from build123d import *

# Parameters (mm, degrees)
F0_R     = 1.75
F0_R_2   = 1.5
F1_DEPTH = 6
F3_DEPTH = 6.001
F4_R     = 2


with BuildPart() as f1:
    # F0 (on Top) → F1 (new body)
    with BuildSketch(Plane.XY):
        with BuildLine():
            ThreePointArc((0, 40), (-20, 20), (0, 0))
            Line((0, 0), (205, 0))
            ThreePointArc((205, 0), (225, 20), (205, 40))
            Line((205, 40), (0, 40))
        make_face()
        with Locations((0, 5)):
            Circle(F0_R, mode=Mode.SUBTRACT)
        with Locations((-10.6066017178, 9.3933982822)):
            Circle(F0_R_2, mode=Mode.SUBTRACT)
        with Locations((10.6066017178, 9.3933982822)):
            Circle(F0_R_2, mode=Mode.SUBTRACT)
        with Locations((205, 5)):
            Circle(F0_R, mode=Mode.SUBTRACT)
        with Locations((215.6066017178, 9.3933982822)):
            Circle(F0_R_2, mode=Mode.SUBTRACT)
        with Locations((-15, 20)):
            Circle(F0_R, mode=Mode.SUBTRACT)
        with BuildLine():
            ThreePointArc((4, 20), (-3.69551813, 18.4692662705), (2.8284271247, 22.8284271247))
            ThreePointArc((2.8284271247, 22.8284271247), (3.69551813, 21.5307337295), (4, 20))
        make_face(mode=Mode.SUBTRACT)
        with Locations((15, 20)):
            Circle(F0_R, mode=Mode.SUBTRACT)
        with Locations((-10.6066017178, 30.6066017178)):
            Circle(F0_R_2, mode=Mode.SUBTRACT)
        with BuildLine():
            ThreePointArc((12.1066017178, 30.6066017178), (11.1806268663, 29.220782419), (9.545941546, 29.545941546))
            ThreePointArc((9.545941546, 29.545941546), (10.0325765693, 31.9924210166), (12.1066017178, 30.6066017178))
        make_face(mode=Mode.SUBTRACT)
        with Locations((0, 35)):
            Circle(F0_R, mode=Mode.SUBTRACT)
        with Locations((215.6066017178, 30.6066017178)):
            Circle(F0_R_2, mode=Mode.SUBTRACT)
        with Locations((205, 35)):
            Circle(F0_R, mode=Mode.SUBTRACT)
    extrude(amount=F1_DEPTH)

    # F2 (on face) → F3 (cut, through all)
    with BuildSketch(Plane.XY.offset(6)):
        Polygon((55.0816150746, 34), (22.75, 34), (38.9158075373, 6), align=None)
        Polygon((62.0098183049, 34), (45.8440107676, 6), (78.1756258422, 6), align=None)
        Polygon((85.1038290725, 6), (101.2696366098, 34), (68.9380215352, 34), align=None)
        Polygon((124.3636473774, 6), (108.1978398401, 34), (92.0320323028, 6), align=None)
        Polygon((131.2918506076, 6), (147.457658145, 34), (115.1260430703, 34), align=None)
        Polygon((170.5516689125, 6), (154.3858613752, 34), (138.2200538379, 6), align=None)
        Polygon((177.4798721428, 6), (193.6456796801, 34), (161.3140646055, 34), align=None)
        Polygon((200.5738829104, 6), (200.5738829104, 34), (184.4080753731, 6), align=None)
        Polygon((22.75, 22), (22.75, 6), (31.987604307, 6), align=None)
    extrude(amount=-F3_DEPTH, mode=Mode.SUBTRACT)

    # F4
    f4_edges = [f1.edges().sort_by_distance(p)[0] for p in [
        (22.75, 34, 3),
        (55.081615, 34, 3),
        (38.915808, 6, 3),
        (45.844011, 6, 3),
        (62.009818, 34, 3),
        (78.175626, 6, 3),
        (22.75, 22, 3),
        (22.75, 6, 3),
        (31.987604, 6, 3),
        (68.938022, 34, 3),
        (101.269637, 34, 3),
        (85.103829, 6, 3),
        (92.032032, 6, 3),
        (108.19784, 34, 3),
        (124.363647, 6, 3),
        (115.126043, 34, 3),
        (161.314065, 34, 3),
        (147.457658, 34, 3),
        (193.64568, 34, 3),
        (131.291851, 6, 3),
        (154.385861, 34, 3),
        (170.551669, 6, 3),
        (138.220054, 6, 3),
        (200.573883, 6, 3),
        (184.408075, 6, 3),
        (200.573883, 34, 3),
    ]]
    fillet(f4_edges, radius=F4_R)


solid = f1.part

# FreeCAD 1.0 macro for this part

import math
import FreeCAD as App
import Part
import Sketcher
Q = App.Units.Quantity


def edges_at(feature, points):
    """Names of the edges that pass closest to the given points."""
    edges = feature.Shape.Edges
    near = lambda p: min(range(len(edges)), key=lambda i: edges[i].distToShape(Part.Vertex(*p))[0])
    return sorted({f"Edge{near(p) + 1}" for p in points})

doc = App.newDocument("Part")
params = doc.addObject("Spreadsheet::Sheet", "Params")
for row, (alias, value) in enumerate([
    ("sketch1_diameter", "3 mm"),
    ("sketch1_radius", "20 mm"),
    ("sketch1_radius2", "4 mm"),
    ("sketch1_diameter2", "3.5 mm"),
    ("sketch1_width", "205 mm"),
    ("pad1_length", "6 mm"),
    ("sketch2_height", "28 mm"),
    ("sketch2_height2", "16 mm"),
    ("fillet_radius", "2 mm"),
], start=1):
    params.set(f"A{row}", alias)
    params.set(f"B{row}", "=" + value)
    params.setAlias(f"B{row}", alias)

body = doc.addObject("PartDesign::Body", "Body")

# Sketch on XY plane
sketch1 = doc.addObject("Sketcher::SketchObject", "Sketch")
body.addObject(sketch1)
sketch1.AttachmentSupport = (doc.XY_Plane, [""])
sketch1.MapMode = "FlatFace"
sketch1.addGeometry(Part.ArcOfCircle(Part.Circle(App.Vector(0, 20, 0), App.Vector(0, 0, 1), 20), math.radians(90), math.radians(270)), False)
sketch1.addGeometry(Part.LineSegment(App.Vector(0, 0, 0), App.Vector(205, 0, 0)), False)
sketch1.addGeometry(Part.ArcOfCircle(Part.Circle(App.Vector(205, 20, 0), App.Vector(0, 0, 1), 20), math.radians(-90), math.radians(90)), False)
sketch1.addGeometry(Part.LineSegment(App.Vector(205, 40, 0), App.Vector(0, 40, 0)), False)
sketch1.addGeometry(Part.Circle(App.Vector(0, 5, 0), App.Vector(0, 0, 1), 1.75), False)
sketch1.addGeometry(Part.Circle(App.Vector(-10.606602, 9.393398, 0), App.Vector(0, 0, 1), 1.5), False)
sketch1.addGeometry(Part.Circle(App.Vector(10.606602, 9.393398, 0), App.Vector(0, 0, 1), 1.5), False)
sketch1.addGeometry(Part.ArcOfCircle(Part.Circle(App.Vector(0, 20, 0), App.Vector(0, 0, 1), 4), math.radians(0), math.radians(45)), False)
sketch1.addGeometry(Part.ArcOfCircle(Part.Circle(App.Vector(0, 20, 0), App.Vector(0, 0, 1), 4), math.radians(45), math.radians(360)), False)
sketch1.addGeometry(Part.Circle(App.Vector(205, 5, 0), App.Vector(0, 0, 1), 1.75), False)
sketch1.addGeometry(Part.Circle(App.Vector(215.606602, 9.393398, 0), App.Vector(0, 0, 1), 1.5), False)
sketch1.addGeometry(Part.Circle(App.Vector(-15, 20, 0), App.Vector(0, 0, 1), 1.75), False)
sketch1.addGeometry(Part.Circle(App.Vector(15, 20, 0), App.Vector(0, 0, 1), 1.75), False)
sketch1.addGeometry(Part.Circle(App.Vector(-10.606602, 30.606602, 0), App.Vector(0, 0, 1), 1.5), False)
sketch1.addGeometry(Part.ArcOfCircle(Part.Circle(App.Vector(10.606602, 30.606602, 0), App.Vector(0, 0, 1), 1.5), math.radians(0), math.radians(225)), False)
sketch1.addGeometry(Part.ArcOfCircle(Part.Circle(App.Vector(10.606602, 30.606602, 0), App.Vector(0, 0, 1), 1.5), math.radians(-135), math.radians(0)), False)
sketch1.addGeometry(Part.Circle(App.Vector(0, 35, 0), App.Vector(0, 0, 1), 1.75), False)
sketch1.addGeometry(Part.Circle(App.Vector(215.606602, 30.606602, 0), App.Vector(0, 0, 1), 1.5), False)
sketch1.addGeometry(Part.Circle(App.Vector(205, 35, 0), App.Vector(0, 0, 1), 1.75), False)
sketch1.addConstraint(Sketcher.Constraint("Tangent", 0, 2, 1, 1))
sketch1.addConstraint(Sketcher.Constraint("Tangent", 1, 2, 2, 1))
sketch1.addConstraint(Sketcher.Constraint("Tangent", 2, 2, 3, 1))
sketch1.addConstraint(Sketcher.Constraint("Tangent", 3, 2, 0, 1))
sketch1.addConstraint(Sketcher.Constraint("Tangent", 7, 1, 8, 2))
sketch1.addConstraint(Sketcher.Constraint("Coincident", 8, 1, 7, 2))
sketch1.addConstraint(Sketcher.Constraint("Tangent", 14, 1, 15, 2))
sketch1.addConstraint(Sketcher.Constraint("Coincident", 15, 1, 14, 2))
sketch1.addConstraint(Sketcher.Constraint("Horizontal", 1))
sketch1.addConstraint(Sketcher.Constraint("Horizontal", 3))
sketch1.addConstraint(Sketcher.Constraint("Coincident", 0, 2, -1, 1))
sketch1.addConstraint(Sketcher.Constraint("Coincident", 7, 3, 0, 3))
sketch1.addConstraint(Sketcher.Constraint("Equal", 5, 6))
sketch1.addConstraint(Sketcher.Constraint("Equal", 4, 9))
sketch1.addConstraint(Sketcher.Constraint("Equal", 6, 10))
sketch1.addConstraint(Sketcher.Constraint("Equal", 9, 11))
sketch1.addConstraint(Sketcher.Constraint("Equal", 11, 12))
sketch1.addConstraint(Sketcher.Constraint("Equal", 10, 13))
sketch1.addConstraint(Sketcher.Constraint("Equal", 13, 14))
sketch1.addConstraint(Sketcher.Constraint("Equal", 12, 16))
sketch1.addConstraint(Sketcher.Constraint("Equal", 15, 17))
sketch1.addConstraint(Sketcher.Constraint("Equal", 16, 18))
sketch1.addConstraint(Sketcher.Constraint("Symmetric", 5, 3, 6, 3, -2))
sketch1.addConstraint(Sketcher.Constraint("Symmetric", 11, 3, 12, 3, -2))
sketch1.addConstraint(Sketcher.Constraint("Symmetric", 13, 3, 14, 3, -2))
sketch1.addConstraint(Sketcher.Constraint("PointOnObject", 4, 3, -2))
sketch1.addConstraint(Sketcher.Constraint("PointOnObject", 16, 3, -2))
sketch1.addConstraint(Sketcher.Constraint("Horizontal", 4, 3, 9, 3))
sketch1.addConstraint(Sketcher.Constraint("Horizontal", 6, 3, 10, 3))
sketch1.addConstraint(Sketcher.Constraint("Horizontal", 8, 3, 11, 3))
sketch1.addConstraint(Sketcher.Constraint("Horizontal", 15, 3, 17, 3))
sketch1.addConstraint(Sketcher.Constraint("Horizontal", 16, 3, 18, 3))
sketch1.addConstraint(Sketcher.Constraint("Horizontal", 12, 3, 7, 1))
sketch1.addConstraint(Sketcher.Constraint("Horizontal", 17, 3, 14, 1))
sketch1.addConstraint(Sketcher.Constraint("Vertical", 2, 3, 9, 3))
sketch1.addConstraint(Sketcher.Constraint("Vertical", 5, 3, 13, 3))
sketch1.addConstraint(Sketcher.Constraint("Vertical", 10, 3, 17, 3))
sketch1.addConstraint(Sketcher.Constraint("Vertical", 9, 3, 18, 3))
sketch1.addConstraint(Sketcher.Constraint("Diameter", 5, 3.0))
sketch1.addConstraint(Sketcher.Constraint("Radius", 0, 20.0))
sketch1.addConstraint(Sketcher.Constraint("Radius", 7, 4.0))
sketch1.addConstraint(Sketcher.Constraint("Diameter", 4, 3.5))
sketch1.addConstraint(Sketcher.Constraint("DistanceX", 1, 1, 1, 2, 205.0))
sketch1.addConstraint(Sketcher.Constraint("DistanceY", -1, 1, 4, 3, 5.0))
sketch1.addConstraint(Sketcher.Constraint("DistanceX", 11, 3, -1, 1, 15.0))
sketch1.addConstraint(Sketcher.Constraint("DistanceY", -1, 1, 16, 3, 35.0))
sketch1.addConstraint(Sketcher.Constraint("DistanceX", 6, 3, 10, 3, 205.0))
sketch1.addConstraint(Sketcher.Constraint("DistanceX", 5, 3, -1, 1, 10.606602))
sketch1.addConstraint(Sketcher.Constraint("DistanceY", -1, 1, 5, 3, 9.393398))
sketch1.addConstraint(Sketcher.Constraint("DistanceY", -1, 1, 13, 3, 30.606602))
sketch1.addConstraint(Sketcher.Constraint("DistanceX", -1, 1, 15, 1, 9.545942))
sketch1.addConstraint(Sketcher.Constraint("DistanceX", -1, 1, 8, 1, 2.828427))
sketch1.setExpression("Constraints[38]", "Params.sketch1_diameter")
sketch1.setExpression("Constraints[39]", "Params.sketch1_radius")
sketch1.setExpression("Constraints[40]", "Params.sketch1_radius2")
sketch1.setExpression("Constraints[41]", "Params.sketch1_diameter2")
sketch1.setExpression("Constraints[42]", "Params.sketch1_width")
pad1 = doc.addObject("PartDesign::Pad", "Pad")
body.addObject(pad1)
pad1.Profile = sketch1
pad1.setExpression("Length", "Params.pad1_length")

# Sketch on XY plane
sketch2 = doc.addObject("Sketcher::SketchObject", "Sketch001")
body.addObject(sketch2)
sketch2.AttachmentSupport = (doc.XY_Plane, [""])
sketch2.MapMode = "FlatFace"
sketch2.AttachmentOffset = App.Placement(App.Vector(0, 0, 6), App.Rotation())
sketch2.addGeometry(Part.LineSegment(App.Vector(55.081615, 34, 0), App.Vector(22.75, 34, 0)), False)
sketch2.addGeometry(Part.LineSegment(App.Vector(22.75, 34, 0), App.Vector(38.915808, 6, 0)), False)
sketch2.addGeometry(Part.LineSegment(App.Vector(38.915808, 6, 0), App.Vector(55.081615, 34, 0)), False)
sketch2.addGeometry(Part.LineSegment(App.Vector(62.009818, 34, 0), App.Vector(45.844011, 6, 0)), False)
sketch2.addGeometry(Part.LineSegment(App.Vector(45.844011, 6, 0), App.Vector(78.175626, 6, 0)), False)
sketch2.addGeometry(Part.LineSegment(App.Vector(78.175626, 6, 0), App.Vector(62.009818, 34, 0)), False)
sketch2.addGeometry(Part.LineSegment(App.Vector(85.103829, 6, 0), App.Vector(101.269637, 34, 0)), False)
sketch2.addGeometry(Part.LineSegment(App.Vector(101.269637, 34, 0), App.Vector(68.938022, 34, 0)), False)
sketch2.addGeometry(Part.LineSegment(App.Vector(68.938022, 34, 0), App.Vector(85.103829, 6, 0)), False)
sketch2.addGeometry(Part.LineSegment(App.Vector(124.363647, 6, 0), App.Vector(108.19784, 34, 0)), False)
sketch2.addGeometry(Part.LineSegment(App.Vector(108.19784, 34, 0), App.Vector(92.032032, 6, 0)), False)
sketch2.addGeometry(Part.LineSegment(App.Vector(92.032032, 6, 0), App.Vector(124.363647, 6, 0)), False)
sketch2.addGeometry(Part.LineSegment(App.Vector(131.291851, 6, 0), App.Vector(147.457658, 34, 0)), False)
sketch2.addGeometry(Part.LineSegment(App.Vector(147.457658, 34, 0), App.Vector(115.126043, 34, 0)), False)
sketch2.addGeometry(Part.LineSegment(App.Vector(115.126043, 34, 0), App.Vector(131.291851, 6, 0)), False)
sketch2.addGeometry(Part.LineSegment(App.Vector(170.551669, 6, 0), App.Vector(154.385861, 34, 0)), False)
sketch2.addGeometry(Part.LineSegment(App.Vector(154.385861, 34, 0), App.Vector(138.220054, 6, 0)), False)
sketch2.addGeometry(Part.LineSegment(App.Vector(138.220054, 6, 0), App.Vector(170.551669, 6, 0)), False)
sketch2.addGeometry(Part.LineSegment(App.Vector(177.479872, 6, 0), App.Vector(193.64568, 34, 0)), False)
sketch2.addGeometry(Part.LineSegment(App.Vector(193.64568, 34, 0), App.Vector(161.314065, 34, 0)), False)
sketch2.addGeometry(Part.LineSegment(App.Vector(161.314065, 34, 0), App.Vector(177.479872, 6, 0)), False)
sketch2.addGeometry(Part.LineSegment(App.Vector(200.573883, 6, 0), App.Vector(200.573883, 34, 0)), False)
sketch2.addGeometry(Part.LineSegment(App.Vector(200.573883, 34, 0), App.Vector(184.408075, 6, 0)), False)
sketch2.addGeometry(Part.LineSegment(App.Vector(184.408075, 6, 0), App.Vector(200.573883, 6, 0)), False)
sketch2.addGeometry(Part.LineSegment(App.Vector(22.75, 22, 0), App.Vector(22.75, 6, 0)), False)
sketch2.addGeometry(Part.LineSegment(App.Vector(22.75, 6, 0), App.Vector(31.987604, 6, 0)), False)
sketch2.addGeometry(Part.LineSegment(App.Vector(31.987604, 6, 0), App.Vector(22.75, 22, 0)), False)
sketch2.addConstraint(Sketcher.Constraint("Coincident", 0, 2, 1, 1))
sketch2.addConstraint(Sketcher.Constraint("Coincident", 1, 2, 2, 1))
sketch2.addConstraint(Sketcher.Constraint("Coincident", 2, 2, 0, 1))
sketch2.addConstraint(Sketcher.Constraint("Coincident", 3, 2, 4, 1))
sketch2.addConstraint(Sketcher.Constraint("Coincident", 4, 2, 5, 1))
sketch2.addConstraint(Sketcher.Constraint("Coincident", 5, 2, 3, 1))
sketch2.addConstraint(Sketcher.Constraint("Coincident", 6, 2, 7, 1))
sketch2.addConstraint(Sketcher.Constraint("Coincident", 7, 2, 8, 1))
sketch2.addConstraint(Sketcher.Constraint("Coincident", 8, 2, 6, 1))
sketch2.addConstraint(Sketcher.Constraint("Coincident", 9, 2, 10, 1))
sketch2.addConstraint(Sketcher.Constraint("Coincident", 10, 2, 11, 1))
sketch2.addConstraint(Sketcher.Constraint("Coincident", 11, 2, 9, 1))
sketch2.addConstraint(Sketcher.Constraint("Coincident", 12, 2, 13, 1))
sketch2.addConstraint(Sketcher.Constraint("Coincident", 13, 2, 14, 1))
sketch2.addConstraint(Sketcher.Constraint("Coincident", 14, 2, 12, 1))
sketch2.addConstraint(Sketcher.Constraint("Coincident", 15, 2, 16, 1))
sketch2.addConstraint(Sketcher.Constraint("Coincident", 16, 2, 17, 1))
sketch2.addConstraint(Sketcher.Constraint("Coincident", 17, 2, 15, 1))
sketch2.addConstraint(Sketcher.Constraint("Coincident", 18, 2, 19, 1))
sketch2.addConstraint(Sketcher.Constraint("Coincident", 19, 2, 20, 1))
sketch2.addConstraint(Sketcher.Constraint("Coincident", 20, 2, 18, 1))
sketch2.addConstraint(Sketcher.Constraint("Coincident", 21, 2, 22, 1))
sketch2.addConstraint(Sketcher.Constraint("Coincident", 22, 2, 23, 1))
sketch2.addConstraint(Sketcher.Constraint("Coincident", 23, 2, 21, 1))
sketch2.addConstraint(Sketcher.Constraint("Coincident", 24, 2, 25, 1))
sketch2.addConstraint(Sketcher.Constraint("Coincident", 25, 2, 26, 1))
sketch2.addConstraint(Sketcher.Constraint("Coincident", 26, 2, 24, 1))
sketch2.addConstraint(Sketcher.Constraint("Horizontal", 0))
sketch2.addConstraint(Sketcher.Constraint("Horizontal", 4))
sketch2.addConstraint(Sketcher.Constraint("Horizontal", 7))
sketch2.addConstraint(Sketcher.Constraint("Horizontal", 11))
sketch2.addConstraint(Sketcher.Constraint("Horizontal", 13))
sketch2.addConstraint(Sketcher.Constraint("Horizontal", 17))
sketch2.addConstraint(Sketcher.Constraint("Horizontal", 19))
sketch2.addConstraint(Sketcher.Constraint("Vertical", 21))
sketch2.addConstraint(Sketcher.Constraint("Horizontal", 23))
sketch2.addConstraint(Sketcher.Constraint("Vertical", 24))
sketch2.addConstraint(Sketcher.Constraint("Horizontal", 25))
sketch2.addConstraint(Sketcher.Constraint("Parallel", 2, 3))
sketch2.addConstraint(Sketcher.Constraint("Parallel", 1, 5))
sketch2.addConstraint(Sketcher.Constraint("Parallel", 3, 6))
sketch2.addConstraint(Sketcher.Constraint("Parallel", 5, 8))
sketch2.addConstraint(Sketcher.Constraint("Parallel", 8, 9))
sketch2.addConstraint(Sketcher.Constraint("Parallel", 6, 10))
sketch2.addConstraint(Sketcher.Constraint("Parallel", 10, 12))
sketch2.addConstraint(Sketcher.Constraint("Parallel", 9, 14))
sketch2.addConstraint(Sketcher.Constraint("Parallel", 14, 15))
sketch2.addConstraint(Sketcher.Constraint("Parallel", 12, 16))
sketch2.addConstraint(Sketcher.Constraint("Parallel", 16, 18))
sketch2.addConstraint(Sketcher.Constraint("Parallel", 15, 20))
sketch2.addConstraint(Sketcher.Constraint("Parallel", 18, 22))
sketch2.addConstraint(Sketcher.Constraint("Parallel", 20, 26))
sketch2.addConstraint(Sketcher.Constraint("Horizontal", 1, 2, 3, 2))
sketch2.addConstraint(Sketcher.Constraint("Horizontal", 2, 2, 5, 2))
sketch2.addConstraint(Sketcher.Constraint("Horizontal", 5, 2, 6, 2))
sketch2.addConstraint(Sketcher.Constraint("Horizontal", 4, 2, 8, 2))
sketch2.addConstraint(Sketcher.Constraint("Horizontal", 7, 2, 9, 2))
sketch2.addConstraint(Sketcher.Constraint("Horizontal", 8, 2, 10, 2))
sketch2.addConstraint(Sketcher.Constraint("Horizontal", 9, 2, 12, 2))
sketch2.addConstraint(Sketcher.Constraint("Horizontal", 11, 2, 14, 2))
sketch2.addConstraint(Sketcher.Constraint("Horizontal", 13, 2, 15, 2))
sketch2.addConstraint(Sketcher.Constraint("Horizontal", 14, 2, 16, 2))
sketch2.addConstraint(Sketcher.Constraint("Horizontal", 15, 2, 18, 2))
sketch2.addConstraint(Sketcher.Constraint("Horizontal", 17, 2, 20, 2))
sketch2.addConstraint(Sketcher.Constraint("Horizontal", 19, 2, 21, 2))
sketch2.addConstraint(Sketcher.Constraint("Horizontal", 20, 2, 22, 2))
sketch2.addConstraint(Sketcher.Constraint("Horizontal", 23, 2, 24, 2))
sketch2.addConstraint(Sketcher.Constraint("Vertical", 0, 2, 24, 2))
sketch2.addConstraint(Sketcher.Constraint("Equal", 1, 2))
sketch2.addConstraint(Sketcher.Constraint("DistanceY", 21, 1, 21, 2, 28.0))
sketch2.addConstraint(Sketcher.Constraint("DistanceY", 24, 2, 24, 1, 16.0))
sketch2.addConstraint(Sketcher.Constraint("Angle", 1, Q("-60 deg")))
sketch2.addConstraint(Sketcher.Constraint("DistanceY", -1, 1, 0, 2, 34.0))
sketch2.addConstraint(Sketcher.Constraint("DistanceX", -1, 1, 0, 2, 22.75))
sketch2.addConstraint(Sketcher.Constraint("DistanceX", -1, 1, 3, 2, 45.844011))
sketch2.addConstraint(Sketcher.Constraint("DistanceX", -1, 1, 7, 2, 68.938022))
sketch2.addConstraint(Sketcher.Constraint("DistanceX", -1, 1, 9, 2, 108.19784))
sketch2.addConstraint(Sketcher.Constraint("DistanceX", -1, 1, 12, 2, 147.457658))
sketch2.addConstraint(Sketcher.Constraint("DistanceX", -1, 1, 15, 2, 154.385861))
sketch2.addConstraint(Sketcher.Constraint("DistanceX", -1, 1, 18, 2, 193.64568))
sketch2.addConstraint(Sketcher.Constraint("DistanceX", 20, 2, 21, 2, 23.094011))
sketch2.setExpression("Constraints[69]", "Params.sketch2_height")
sketch2.setExpression("Constraints[70]", "Params.sketch2_height2")
pocket1 = doc.addObject("PartDesign::Pocket", "Pocket")
body.addObject(pocket1)
pocket1.Profile = sketch2
pocket1.Type = "ThroughAll"
doc.recompute()

fillet = doc.addObject("PartDesign::Fillet", "Fillet")
body.addObject(fillet)
fillet.Base = (pocket1, edges_at(pocket1, [
    (22.75, 34, 3),
    (55.082, 34, 3),
    (38.916, 6, 3),
    (45.844, 6, 3),
    (62.01, 34, 3),
    (78.176, 6, 3),
    (22.75, 22, 3),
    (22.75, 6, 3),
    (31.988, 6, 3),
    (68.938, 34, 3),
    (101.27, 34, 3),
    (85.104, 6, 3),
    (92.032, 6, 3),
    (108.198, 34, 3),
    (124.364, 6, 3),
    (115.126, 34, 3),
    (161.314, 34, 3),
    (147.458, 34, 3),
    (193.646, 34, 3),
    (131.292, 6, 3),
    (154.386, 34, 3),
    (170.552, 6, 3),
    (138.22, 6, 3),
    (200.574, 6, 3),
    (184.408, 6, 3),
    (200.574, 34, 3),
]))
fillet.setExpression("Radius", "Params.fillet_radius")

doc.recompute()
